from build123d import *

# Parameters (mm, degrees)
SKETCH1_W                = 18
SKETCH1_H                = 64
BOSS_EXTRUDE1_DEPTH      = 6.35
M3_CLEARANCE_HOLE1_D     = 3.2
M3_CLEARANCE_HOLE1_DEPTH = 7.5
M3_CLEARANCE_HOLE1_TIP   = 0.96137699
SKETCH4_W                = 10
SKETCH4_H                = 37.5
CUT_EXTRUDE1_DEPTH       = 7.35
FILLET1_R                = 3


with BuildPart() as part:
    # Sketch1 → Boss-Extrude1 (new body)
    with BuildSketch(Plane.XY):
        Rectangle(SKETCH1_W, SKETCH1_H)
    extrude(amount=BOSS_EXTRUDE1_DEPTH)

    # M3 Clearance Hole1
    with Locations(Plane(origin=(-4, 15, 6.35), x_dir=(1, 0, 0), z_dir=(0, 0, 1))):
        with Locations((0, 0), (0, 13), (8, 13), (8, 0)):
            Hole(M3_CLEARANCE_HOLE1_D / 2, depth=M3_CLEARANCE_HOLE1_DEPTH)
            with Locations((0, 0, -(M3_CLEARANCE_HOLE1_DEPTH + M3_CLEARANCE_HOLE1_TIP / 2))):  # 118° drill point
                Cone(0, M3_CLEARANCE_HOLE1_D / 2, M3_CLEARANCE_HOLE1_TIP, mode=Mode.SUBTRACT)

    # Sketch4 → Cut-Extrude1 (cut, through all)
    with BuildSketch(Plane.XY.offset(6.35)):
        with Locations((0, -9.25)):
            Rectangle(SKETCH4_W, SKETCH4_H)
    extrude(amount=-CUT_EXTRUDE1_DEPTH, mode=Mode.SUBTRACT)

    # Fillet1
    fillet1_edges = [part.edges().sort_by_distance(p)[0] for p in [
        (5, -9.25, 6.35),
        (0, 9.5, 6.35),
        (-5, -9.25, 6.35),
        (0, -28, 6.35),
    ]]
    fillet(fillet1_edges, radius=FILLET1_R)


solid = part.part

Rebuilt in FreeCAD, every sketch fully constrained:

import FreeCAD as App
import Part
import Sketcher
from FreeCAD import Vector


def edges_at(feature, points):
    """Names of the edges that pass closest to the given points."""
    edges = feature.Shape.Edges
    near = lambda p: min(range(len(edges)), key=lambda i: edges[i].distToShape(Part.Vertex(*p))[0])
    return sorted({f"Edge{near(p) + 1}" for p in points})

doc = App.newDocument("Part")
body = doc.addObject("PartDesign::Body", "Body")

# Sketch on XY plane
sketch1 = doc.addObject("Sketcher::SketchObject", "Sketch")
body.addObject(sketch1)
sketch1.AttachmentSupport = (doc.XY_Plane, [""])
sketch1.MapMode = "FlatFace"
sketch1.addGeometry([
    Part.LineSegment(Vector(-9, 32, 0), Vector(-9, -32, 0)),
    Part.LineSegment(Vector(-9, -32, 0), Vector(9, -32, 0)),
    Part.LineSegment(Vector(9, -32, 0), Vector(9, 32, 0)),
    Part.LineSegment(Vector(9, 32, 0), Vector(-9, 32, 0)),
], False)
sketch1.addConstraint([
    Sketcher.Constraint("Coincident", 0, 2, 1, 1),
    Sketcher.Constraint("Coincident", 1, 2, 2, 1),
    Sketcher.Constraint("Coincident", 2, 2, 3, 1),
    Sketcher.Constraint("Coincident", 3, 2, 0, 1),
    Sketcher.Constraint("Vertical", 0),
    Sketcher.Constraint("Horizontal", 1),
    Sketcher.Constraint("Vertical", 2),
    Sketcher.Constraint("Horizontal", 3),
    Sketcher.Constraint("Symmetric", 0, 2, 2, 2, -1, 1),
    Sketcher.Constraint("DistanceX", 1, 1, 1, 2, 18.0),
    Sketcher.Constraint("DistanceY", 0, 2, 0, 1, 64.0),
])
pad1 = doc.addObject("PartDesign::Pad", "Pad")
body.addObject(pad1)
pad1.Profile = sketch1
pad1.Length = 6.35

# Sketch on XY plane
sketch2 = doc.addObject("Sketcher::SketchObject", "Sketch001")
body.addObject(sketch2)
sketch2.AttachmentSupport = (doc.XY_Plane, [""])
sketch2.MapMode = "FlatFace"
sketch2.AttachmentOffset = App.Placement(Vector(0, 0, 6.35), App.Rotation())
sketch2.addGeometry([
    Part.Circle(Vector(-4, 15, 0), Vector(0, 0, 1), 1.6),
    Part.Circle(Vector(-4, 28, 0), Vector(0, 0, 1), 1.6),
    Part.Circle(Vector(4, 28, 0), Vector(0, 0, 1), 1.6),
    Part.Circle(Vector(4, 15, 0), Vector(0, 0, 1), 1.6),
], False)
sketch2.addConstraint([
    Sketcher.Constraint("Equal", 0, 1),
    Sketcher.Constraint("Equal", 1, 2),
    Sketcher.Constraint("Equal", 2, 3),
    Sketcher.Constraint("Symmetric", 1, 3, 2, 3, -2),
    Sketcher.Constraint("Symmetric", 0, 3, 3, 3, -2),
    Sketcher.Constraint("Vertical", 0, 3, 1, 3),
    Sketcher.Constraint("Diameter", 0, 3.2),
    Sketcher.Constraint("DistanceX", 0, 3, -1, 1, 4.0),
    Sketcher.Constraint("DistanceY", -1, 1, 0, 3, 15.0),
    Sketcher.Constraint("DistanceY", -1, 1, 1, 3, 28.0),
])
doc.recompute()
hole = doc.addObject("PartDesign::Hole", "Hole")
body.addObject(hole)
hole.Profile = sketch2
hole.ThreadType = "None"
hole.Diameter = 3.2
hole.DepthType = "Dimension"
hole.Depth = 7.5
hole.DrillPoint = "Angled"
hole.DrillPointAngle = 118

# Sketch on XY plane
sketch3 = doc.addObject("Sketcher::SketchObject", "Sketch002")
body.addObject(sketch3)
sketch3.AttachmentSupport = (doc.XY_Plane, [""])
sketch3.MapMode = "FlatFace"
sketch3.AttachmentOffset = App.Placement(Vector(0, 0, 6.35), App.Rotation())
sketch3.addGeometry([
    Part.LineSegment(Vector(-5, 9.5, 0), Vector(-5, -28, 0)),
    Part.LineSegment(Vector(-5, -28, 0), Vector(5, -28, 0)),
    Part.LineSegment(Vector(5, -28, 0), Vector(5, 9.5, 0)),
    Part.LineSegment(Vector(5, 9.5, 0), Vector(-5, 9.5, 0)),
], False)
sketch3.addConstraint([
    Sketcher.Constraint("Coincident", 0, 2, 1, 1),
    Sketcher.Constraint("Coincident", 1, 2, 2, 1),
    Sketcher.Constraint("Coincident", 2, 2, 3, 1),
    Sketcher.Constraint("Coincident", 3, 2, 0, 1),
    Sketcher.Constraint("Vertical", 0),
    Sketcher.Constraint("Horizontal", 1),
    Sketcher.Constraint("Vertical", 2),
    Sketcher.Constraint("Horizontal", 3),
    Sketcher.Constraint("DistanceX", 1, 1, 1, 2, 10.0),
    Sketcher.Constraint("DistanceY", 0, 2, 0, 1, 37.5),
    Sketcher.Constraint("DistanceX", 0, 2, -1, 1, 5.0),
    Sketcher.Constraint("DistanceY", 0, 2, -1, 1, 28.0),
])
pocket1 = doc.addObject("PartDesign::Pocket", "Pocket")
body.addObject(pocket1)
pocket1.Profile = sketch3
pocket1.Type = "ThroughAll"
doc.recompute()

fillet = doc.addObject("PartDesign::Fillet", "Fillet")
body.addObject(fillet)
fillet.Base = (pocket1, edges_at(pocket1, [
    (5, -9.25, 6.35),
    (0, 9.5, 6.35),
    (-5, -9.25, 6.35),
    (0, -28, 6.35),
]))
fillet.Radius = 3

doc.recompute()
